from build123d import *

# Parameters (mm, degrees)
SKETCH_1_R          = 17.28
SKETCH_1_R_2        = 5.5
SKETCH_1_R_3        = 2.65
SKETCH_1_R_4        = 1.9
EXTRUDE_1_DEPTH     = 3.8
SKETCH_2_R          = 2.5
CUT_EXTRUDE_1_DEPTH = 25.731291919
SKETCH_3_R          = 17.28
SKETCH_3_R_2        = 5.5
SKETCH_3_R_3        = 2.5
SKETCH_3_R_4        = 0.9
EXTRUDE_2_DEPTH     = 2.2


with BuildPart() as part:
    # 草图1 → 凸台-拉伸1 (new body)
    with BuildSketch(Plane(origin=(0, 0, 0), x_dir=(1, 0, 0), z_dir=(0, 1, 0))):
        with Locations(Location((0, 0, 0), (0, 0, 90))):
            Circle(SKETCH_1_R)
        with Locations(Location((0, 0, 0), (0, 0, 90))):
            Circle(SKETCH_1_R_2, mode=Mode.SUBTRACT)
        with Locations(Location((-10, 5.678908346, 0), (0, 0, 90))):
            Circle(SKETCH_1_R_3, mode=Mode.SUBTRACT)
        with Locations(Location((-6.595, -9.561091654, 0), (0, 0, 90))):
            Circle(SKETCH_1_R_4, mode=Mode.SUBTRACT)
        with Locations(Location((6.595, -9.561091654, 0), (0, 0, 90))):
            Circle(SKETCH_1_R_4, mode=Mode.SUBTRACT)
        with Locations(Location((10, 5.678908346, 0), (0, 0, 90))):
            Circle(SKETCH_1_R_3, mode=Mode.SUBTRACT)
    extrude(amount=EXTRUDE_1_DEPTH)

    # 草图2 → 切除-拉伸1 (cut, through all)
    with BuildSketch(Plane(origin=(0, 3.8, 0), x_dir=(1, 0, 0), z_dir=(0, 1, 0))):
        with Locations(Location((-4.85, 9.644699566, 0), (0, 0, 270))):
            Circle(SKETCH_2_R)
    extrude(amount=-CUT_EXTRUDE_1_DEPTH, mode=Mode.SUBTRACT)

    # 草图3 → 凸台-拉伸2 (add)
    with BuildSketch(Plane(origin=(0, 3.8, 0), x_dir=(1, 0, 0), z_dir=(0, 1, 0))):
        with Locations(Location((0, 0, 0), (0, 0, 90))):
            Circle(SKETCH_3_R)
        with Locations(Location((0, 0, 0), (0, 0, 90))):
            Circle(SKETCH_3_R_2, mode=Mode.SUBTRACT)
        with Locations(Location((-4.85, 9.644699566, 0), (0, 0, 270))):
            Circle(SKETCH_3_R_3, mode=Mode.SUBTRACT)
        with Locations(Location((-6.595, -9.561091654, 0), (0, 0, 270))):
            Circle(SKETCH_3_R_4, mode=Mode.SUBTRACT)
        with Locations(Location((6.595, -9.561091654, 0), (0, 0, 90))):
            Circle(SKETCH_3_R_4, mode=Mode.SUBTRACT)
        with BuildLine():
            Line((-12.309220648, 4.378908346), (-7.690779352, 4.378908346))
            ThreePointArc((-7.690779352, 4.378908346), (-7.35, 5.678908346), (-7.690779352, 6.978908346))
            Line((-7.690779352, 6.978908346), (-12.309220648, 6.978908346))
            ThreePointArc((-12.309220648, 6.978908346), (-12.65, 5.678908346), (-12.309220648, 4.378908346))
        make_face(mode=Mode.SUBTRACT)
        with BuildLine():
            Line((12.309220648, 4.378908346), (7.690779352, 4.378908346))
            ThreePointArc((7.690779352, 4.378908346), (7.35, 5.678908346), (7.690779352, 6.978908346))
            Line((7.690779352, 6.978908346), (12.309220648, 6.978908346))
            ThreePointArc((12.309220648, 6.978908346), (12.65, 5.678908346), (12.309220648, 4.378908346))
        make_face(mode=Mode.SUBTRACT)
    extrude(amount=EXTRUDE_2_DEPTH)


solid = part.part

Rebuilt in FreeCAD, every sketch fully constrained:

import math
import FreeCAD as App
import Part
import Sketcher

V = App.Vector
Q = App.Units.Quantity

doc = App.newDocument("Part")
params = doc.addObject("Spreadsheet::Sheet", "Params")
for row, (alias, value) in enumerate([
    ("sketch1_diameter", "11 mm"),
    ("sketch1_diameter2", "3.8 mm"),
    ("sketch1_diameter3", "5.3 mm"),
    ("sketch1_diameter4", "34.56 mm"),
    ("pad1_length", "3.8 mm"),
    ("sketch2_diameter", "5 mm"),
    ("sketch3_diameter", "11 mm"),
    ("sketch3_diameter2", "5 mm"),
    ("sketch3_diameter3", "1.8 mm"),
    ("sketch3_diameter4", "34.56 mm"),
    ("sketch3_radius", "2.65 mm"),
    ("pad2_length", "2.2 mm"),
], start=1):
    params.set(f"A{row}", alias)
    params.set(f"B{row}", "=" + value)
    params.setAlias(f"B{row}", alias)

body = doc.addObject("PartDesign::Body", "Body")

sketch1 = doc.addObject("Sketcher::SketchObject", "Sketch")
body.addObject(sketch1)
sketch1.AttachmentSupport = (doc.XZ_Plane, [""])
sketch1.MapMode = "FlatFace"
sketch1.addGeometry(Part.Circle(V(0, 0, 0), V(0, 0, 1), 17.3), False)
sketch1.addGeometry(Part.Circle(V(6.6, 9.6, 0), V(0, 0, 1), 1.9), False)
sketch1.addGeometry(Part.Circle(V(10, -5.7, 0), V(0, 0, 1), 2.6), False)
sketch1.addGeometry(Part.Circle(V(0, 0, 0), V(0, 0, 1), 5.5), False)
sketch1.addGeometry(Part.Circle(V(-6.6, 9.6, 0), V(0, 0, 1), 1.9), False)
sketch1.addGeometry(Part.Circle(V(-10, -5.7, 0), V(0, 0, 1), 2.6), False)
sketch1.addConstraint(Sketcher.Constraint("Coincident", 0, 3, -1, 1))
sketch1.addConstraint(Sketcher.Constraint("Coincident", 3, 3, -1, 1))
sketch1.addConstraint(Sketcher.Constraint("Equal", 1, 4))
sketch1.addConstraint(Sketcher.Constraint("Equal", 2, 5))
sketch1.addConstraint(Sketcher.Constraint("Symmetric", 1, 3, 4, 3, -2))
sketch1.addConstraint(Sketcher.Constraint("Symmetric", 2, 3, 5, 3, -2))
sketch1.addConstraint(Sketcher.Constraint("Diameter", 3, Q("11 mm")))
sketch1.addConstraint(Sketcher.Constraint("Diameter", 1, Q("3.8 mm")))
sketch1.addConstraint(Sketcher.Constraint("Diameter", 2, Q("5.3 mm")))
sketch1.addConstraint(Sketcher.Constraint("Diameter", 0, Q("34.56 mm")))
sketch1.addConstraint(Sketcher.Constraint("DistanceX", -1, 1, 2, 3, Q("10 mm")))
sketch1.addConstraint(Sketcher.Constraint("DistanceY", 2, 3, 1, 3, Q("15.24 mm")))
sketch1.addConstraint(Sketcher.Constraint("DistanceX", 4, 3, 1, 3, Q("13.19 mm")))
sketch1.addConstraint(Sketcher.Constraint("DistanceY", -1, 1, 1, 3, Q("9.561092 mm")))
sketch1.setExpression("Constraints[6]", "Params.sketch1_diameter")
sketch1.setExpression("Constraints[7]", "Params.sketch1_diameter2")
sketch1.setExpression("Constraints[8]", "Params.sketch1_diameter3")
sketch1.setExpression("Constraints[9]", "Params.sketch1_diameter4")
pad1 = doc.addObject("PartDesign::Pad", "Pad")
body.addObject(pad1)
pad1.Profile = sketch1
pad1.setExpression("Length", "Params.pad1_length")
pad1.Reversed = True

sketch2 = doc.addObject("Sketcher::SketchObject", "Sketch001")
body.addObject(sketch2)
sketch2.AttachmentSupport = (doc.XZ_Plane, [""])
sketch2.MapMode = "FlatFace"
sketch2.AttachmentOffset = App.Placement(V(0, 0, -3.8), App.Rotation())
sketch2.addGeometry(Part.Circle(V(-4.8, -9.6, 0), V(0, 0, 1), 2.5), False)
sketch2.addConstraint(Sketcher.Constraint("Diameter", 0, Q("5 mm")))
sketch2.addConstraint(Sketcher.Constraint("DistanceX", 0, 3, -1, 1, Q("4.85 mm")))
sketch2.addConstraint(Sketcher.Constraint("DistanceY", 0, 3, -1, 1, Q("9.6447 mm")))
sketch2.setExpression("Constraints[0]", "Params.sketch2_diameter")
pocket1 = doc.addObject("PartDesign::Pocket", "Pocket")
body.addObject(pocket1)
pocket1.Profile = sketch2
pocket1.Type = "ThroughAll"
pocket1.Reversed = True

sketch3 = doc.addObject("Sketcher::SketchObject", "Sketch002")
body.addObject(sketch3)
sketch3.AttachmentSupport = (doc.XZ_Plane, [""])
sketch3.MapMode = "FlatFace"
sketch3.AttachmentOffset = App.Placement(V(0, 0, -3.8), App.Rotation())
sketch3.addGeometry(Part.Circle(V(0, 0, 0), V(0, 0, 1), 17.3), False)
sketch3.addGeometry(Part.Circle(V(6.6, 9.6, 0), V(0, 0, 1), 0.9), False)
sketch3.addGeometry(Part.Circle(V(0, 0, 0), V(0, 0, 1), 5.5), False)
sketch3.addGeometry(Part.ArcOfCircle(Part.Circle(V(10, -5.7, 0), V(0, 0, 1), 2.7), math.radians(-29), math.radians(29)), False)
sketch3.addGeometry(Part.LineSegment(V(12.3, -4.4, 0), V(7.7, -4.4, 0)), False)
sketch3.addGeometry(Part.ArcOfCircle(Part.Circle(V(10, -5.7, 0), V(0, 0, 1), 2.7), math.radians(151), math.radians(209)), False)
sketch3.addGeometry(Part.LineSegment(V(7.7, -7, 0), V(12.3, -7, 0)), False)
sketch3.addGeometry(Part.Circle(V(-6.6, 9.6, 0), V(0, 0, 1), 0.9), False)
sketch3.addGeometry(Part.Circle(V(-4.8, -9.6, 0), V(0, 0, 1), 2.5), False)
sketch3.addGeometry(Part.LineSegment(V(-7.7, -4.4, 0), V(-12.3, -4.4, 0)), False)
sketch3.addGeometry(Part.ArcOfCircle(Part.Circle(V(-10, -5.7, 0), V(0, 0, 1), 2.7), math.radians(151), math.radians(209)), False)
sketch3.addGeometry(Part.LineSegment(V(-12.3, -7, 0), V(-7.7, -7, 0)), False)
sketch3.addGeometry(Part.ArcOfCircle(Part.Circle(V(-10, -5.7, 0), V(0, 0, 1), 2.7), math.radians(-29), math.radians(29)), False)
sketch3.addConstraint(Sketcher.Constraint("Coincident", 3, 2, 4, 1))
sketch3.addConstraint(Sketcher.Constraint("Coincident", 4, 2, 5, 1))
sketch3.addConstraint(Sketcher.Constraint("Coincident", 5, 2, 6, 1))
sketch3.addConstraint(Sketcher.Constraint("Coincident", 6, 2, 3, 1))
sketch3.addConstraint(Sketcher.Constraint("Coincident", 9, 2, 10, 1))
sketch3.addConstraint(Sketcher.Constraint("Coincident", 10, 2, 11, 1))
sketch3.addConstraint(Sketcher.Constraint("Coincident", 11, 2, 12, 1))
sketch3.addConstraint(Sketcher.Constraint("Coincident", 12, 2, 9, 1))
sketch3.addConstraint(Sketcher.Constraint("Horizontal", 4))
sketch3.addConstraint(Sketcher.Constraint("Horizontal", 6))
sketch3.addConstraint(Sketcher.Constraint("Horizontal", 9))
sketch3.addConstraint(Sketcher.Constraint("Horizontal", 11))
sketch3.addConstraint(Sketcher.Constraint("Coincident", 0, 3, -1, 1))
sketch3.addConstraint(Sketcher.Constraint("Coincident", 2, 3, -1, 1))
sketch3.addConstraint(Sketcher.Constraint("Coincident", 5, 3, 3, 3))
sketch3.addConstraint(Sketcher.Constraint("Coincident", 12, 3, 10, 3))
sketch3.addConstraint(Sketcher.Constraint("Equal", 3, 5))
sketch3.addConstraint(Sketcher.Constraint("Equal", 1, 7))
sketch3.addConstraint(Sketcher.Constraint("Equal", 5, 10))
sketch3.addConstraint(Sketcher.Constraint("Equal", 10, 12))
sketch3.addConstraint(Sketcher.Constraint("Symmetric", 1, 3, 7, 3, -2))
sketch3.addConstraint(Sketcher.Constraint("Symmetric", 3, 3, 10, 3, -2))
sketch3.addConstraint(Sketcher.Constraint("Horizontal", 4, 2, 9, 2))
sketch3.addConstraint(Sketcher.Constraint("Horizontal", 6, 2, 10, 2))
sketch3.addConstraint(Sketcher.Constraint("Vertical", 4, 2, 5, 2))
sketch3.addConstraint(Sketcher.Constraint("Diameter", 2, Q("11 mm")))
sketch3.addConstraint(Sketcher.Constraint("Diameter", 8, Q("5 mm")))
sketch3.addConstraint(Sketcher.Constraint("Diameter", 1, Q("1.8 mm")))
sketch3.addConstraint(Sketcher.Constraint("Diameter", 0, Q("34.56 mm")))
sketch3.addConstraint(Sketcher.Constraint("Radius", 3, Q("2.65 mm")))
sketch3.addConstraint(Sketcher.Constraint("DistanceX", -1, 1, 3, 3, Q("10 mm")))
sketch3.addConstraint(Sketcher.Constraint("DistanceY", 5, 3, 3, 2, Q("1.3 mm")))
sketch3.addConstraint(Sketcher.Constraint("DistanceX", 8, 3, -1, 1, Q("4.85 mm")))
sketch3.addConstraint(Sketcher.Constraint("DistanceY", 3, 3, 1, 3, Q("15.24 mm")))
sketch3.addConstraint(Sketcher.Constraint("DistanceX", 7, 3, 1, 3, Q("13.19 mm")))
sketch3.addConstraint(Sketcher.Constraint("DistanceY", 8, 3, -1, 1, Q("9.6447 mm")))
sketch3.addConstraint(Sketcher.Constraint("DistanceY", -1, 1, 1, 3, Q("9.561092 mm")))
sketch3.setExpression("Constraints[25]", "Params.sketch3_diameter")
sketch3.setExpression("Constraints[26]", "Params.sketch3_diameter2")
sketch3.setExpression("Constraints[27]", "Params.sketch3_diameter3")
sketch3.setExpression("Constraints[28]", "Params.sketch3_diameter4")
sketch3.setExpression("Constraints[29]", "Params.sketch3_radius")
pad2 = doc.addObject("PartDesign::Pad", "Pad001")
body.addObject(pad2)
pad2.Profile = sketch3
pad2.setExpression("Length", "Params.pad2_length")
pad2.Reversed = True

doc.recompute()
